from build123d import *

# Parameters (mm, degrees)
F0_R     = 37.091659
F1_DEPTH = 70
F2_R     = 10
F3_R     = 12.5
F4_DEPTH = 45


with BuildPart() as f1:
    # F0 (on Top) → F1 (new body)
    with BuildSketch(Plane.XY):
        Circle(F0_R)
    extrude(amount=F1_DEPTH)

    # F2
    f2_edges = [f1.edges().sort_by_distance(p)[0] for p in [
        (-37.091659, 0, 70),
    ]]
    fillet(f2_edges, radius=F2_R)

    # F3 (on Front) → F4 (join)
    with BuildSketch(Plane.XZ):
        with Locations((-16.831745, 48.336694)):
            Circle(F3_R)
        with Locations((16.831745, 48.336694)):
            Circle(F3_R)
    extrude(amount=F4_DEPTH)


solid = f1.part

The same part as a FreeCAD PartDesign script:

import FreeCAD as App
import Part
import Sketcher

V = App.Vector


def edges_at(feature, points):
    """Names of the edges that pass closest to the given points."""
    edges = feature.Shape.Edges
    near = lambda p: min(range(len(edges)), key=lambda i: edges[i].distToShape(Part.Vertex(*p))[0])
    return sorted({f"Edge{near(p) + 1}" for p in points})

doc = App.newDocument("Part")
body = doc.addObject("PartDesign::Body", "Body")

# Sketch on XY plane
sketch1 = doc.addObject("Sketcher::SketchObject", "Sketch")
body.addObject(sketch1)
sketch1.AttachmentSupport = (doc.XY_Plane, [""])
sketch1.MapMode = "FlatFace"
sketch1.addGeometry(Part.Circle(V(0, 0, 0), V(0, 0, 1), 37), False)
sketch1.addConstraint([
    Sketcher.Constraint("Coincident", 0, 3, -1, 1),
    Sketcher.Constraint("Diameter", 0, 74.183318),
])
pad1 = doc.addObject("PartDesign::Pad", "Pad")
body.addObject(pad1)
pad1.Profile = sketch1
pad1.Length = 70
doc.recompute()

fillet = doc.addObject("PartDesign::Fillet", "Fillet")
body.addObject(fillet)
fillet.Base = (pad1, edges_at(pad1, [(-37.092, 0, 70)]))
fillet.Radius = 10

# Sketch on XZ plane
sketch2 = doc.addObject("Sketcher::SketchObject", "Sketch001")
body.addObject(sketch2)
sketch2.AttachmentSupport = (doc.XZ_Plane, [""])
sketch2.MapMode = "FlatFace"
sketch2.addGeometry([
    Part.Circle(V(-17, 48, 0), V(0, 0, 1), 12),
    Part.Circle(V(17, 48, 0), V(0, 0, 1), 12),
], False)
sketch2.addConstraint([
    Sketcher.Constraint("Equal", 0, 1),
    Sketcher.Constraint("Symmetric", 0, 3, 1, 3, -2),
    Sketcher.Constraint("Diameter", 0, 25.0),
    Sketcher.Constraint("DistanceX", 0, 3, 1, 3, 33.66349),
    Sketcher.Constraint("DistanceY", -1, 1, 0, 3, 48.336694),
])
pad2 = doc.addObject("PartDesign::Pad", "Pad001")
body.addObject(pad2)
pad2.Profile = sketch2
pad2.Length = 45

doc.recompute()
